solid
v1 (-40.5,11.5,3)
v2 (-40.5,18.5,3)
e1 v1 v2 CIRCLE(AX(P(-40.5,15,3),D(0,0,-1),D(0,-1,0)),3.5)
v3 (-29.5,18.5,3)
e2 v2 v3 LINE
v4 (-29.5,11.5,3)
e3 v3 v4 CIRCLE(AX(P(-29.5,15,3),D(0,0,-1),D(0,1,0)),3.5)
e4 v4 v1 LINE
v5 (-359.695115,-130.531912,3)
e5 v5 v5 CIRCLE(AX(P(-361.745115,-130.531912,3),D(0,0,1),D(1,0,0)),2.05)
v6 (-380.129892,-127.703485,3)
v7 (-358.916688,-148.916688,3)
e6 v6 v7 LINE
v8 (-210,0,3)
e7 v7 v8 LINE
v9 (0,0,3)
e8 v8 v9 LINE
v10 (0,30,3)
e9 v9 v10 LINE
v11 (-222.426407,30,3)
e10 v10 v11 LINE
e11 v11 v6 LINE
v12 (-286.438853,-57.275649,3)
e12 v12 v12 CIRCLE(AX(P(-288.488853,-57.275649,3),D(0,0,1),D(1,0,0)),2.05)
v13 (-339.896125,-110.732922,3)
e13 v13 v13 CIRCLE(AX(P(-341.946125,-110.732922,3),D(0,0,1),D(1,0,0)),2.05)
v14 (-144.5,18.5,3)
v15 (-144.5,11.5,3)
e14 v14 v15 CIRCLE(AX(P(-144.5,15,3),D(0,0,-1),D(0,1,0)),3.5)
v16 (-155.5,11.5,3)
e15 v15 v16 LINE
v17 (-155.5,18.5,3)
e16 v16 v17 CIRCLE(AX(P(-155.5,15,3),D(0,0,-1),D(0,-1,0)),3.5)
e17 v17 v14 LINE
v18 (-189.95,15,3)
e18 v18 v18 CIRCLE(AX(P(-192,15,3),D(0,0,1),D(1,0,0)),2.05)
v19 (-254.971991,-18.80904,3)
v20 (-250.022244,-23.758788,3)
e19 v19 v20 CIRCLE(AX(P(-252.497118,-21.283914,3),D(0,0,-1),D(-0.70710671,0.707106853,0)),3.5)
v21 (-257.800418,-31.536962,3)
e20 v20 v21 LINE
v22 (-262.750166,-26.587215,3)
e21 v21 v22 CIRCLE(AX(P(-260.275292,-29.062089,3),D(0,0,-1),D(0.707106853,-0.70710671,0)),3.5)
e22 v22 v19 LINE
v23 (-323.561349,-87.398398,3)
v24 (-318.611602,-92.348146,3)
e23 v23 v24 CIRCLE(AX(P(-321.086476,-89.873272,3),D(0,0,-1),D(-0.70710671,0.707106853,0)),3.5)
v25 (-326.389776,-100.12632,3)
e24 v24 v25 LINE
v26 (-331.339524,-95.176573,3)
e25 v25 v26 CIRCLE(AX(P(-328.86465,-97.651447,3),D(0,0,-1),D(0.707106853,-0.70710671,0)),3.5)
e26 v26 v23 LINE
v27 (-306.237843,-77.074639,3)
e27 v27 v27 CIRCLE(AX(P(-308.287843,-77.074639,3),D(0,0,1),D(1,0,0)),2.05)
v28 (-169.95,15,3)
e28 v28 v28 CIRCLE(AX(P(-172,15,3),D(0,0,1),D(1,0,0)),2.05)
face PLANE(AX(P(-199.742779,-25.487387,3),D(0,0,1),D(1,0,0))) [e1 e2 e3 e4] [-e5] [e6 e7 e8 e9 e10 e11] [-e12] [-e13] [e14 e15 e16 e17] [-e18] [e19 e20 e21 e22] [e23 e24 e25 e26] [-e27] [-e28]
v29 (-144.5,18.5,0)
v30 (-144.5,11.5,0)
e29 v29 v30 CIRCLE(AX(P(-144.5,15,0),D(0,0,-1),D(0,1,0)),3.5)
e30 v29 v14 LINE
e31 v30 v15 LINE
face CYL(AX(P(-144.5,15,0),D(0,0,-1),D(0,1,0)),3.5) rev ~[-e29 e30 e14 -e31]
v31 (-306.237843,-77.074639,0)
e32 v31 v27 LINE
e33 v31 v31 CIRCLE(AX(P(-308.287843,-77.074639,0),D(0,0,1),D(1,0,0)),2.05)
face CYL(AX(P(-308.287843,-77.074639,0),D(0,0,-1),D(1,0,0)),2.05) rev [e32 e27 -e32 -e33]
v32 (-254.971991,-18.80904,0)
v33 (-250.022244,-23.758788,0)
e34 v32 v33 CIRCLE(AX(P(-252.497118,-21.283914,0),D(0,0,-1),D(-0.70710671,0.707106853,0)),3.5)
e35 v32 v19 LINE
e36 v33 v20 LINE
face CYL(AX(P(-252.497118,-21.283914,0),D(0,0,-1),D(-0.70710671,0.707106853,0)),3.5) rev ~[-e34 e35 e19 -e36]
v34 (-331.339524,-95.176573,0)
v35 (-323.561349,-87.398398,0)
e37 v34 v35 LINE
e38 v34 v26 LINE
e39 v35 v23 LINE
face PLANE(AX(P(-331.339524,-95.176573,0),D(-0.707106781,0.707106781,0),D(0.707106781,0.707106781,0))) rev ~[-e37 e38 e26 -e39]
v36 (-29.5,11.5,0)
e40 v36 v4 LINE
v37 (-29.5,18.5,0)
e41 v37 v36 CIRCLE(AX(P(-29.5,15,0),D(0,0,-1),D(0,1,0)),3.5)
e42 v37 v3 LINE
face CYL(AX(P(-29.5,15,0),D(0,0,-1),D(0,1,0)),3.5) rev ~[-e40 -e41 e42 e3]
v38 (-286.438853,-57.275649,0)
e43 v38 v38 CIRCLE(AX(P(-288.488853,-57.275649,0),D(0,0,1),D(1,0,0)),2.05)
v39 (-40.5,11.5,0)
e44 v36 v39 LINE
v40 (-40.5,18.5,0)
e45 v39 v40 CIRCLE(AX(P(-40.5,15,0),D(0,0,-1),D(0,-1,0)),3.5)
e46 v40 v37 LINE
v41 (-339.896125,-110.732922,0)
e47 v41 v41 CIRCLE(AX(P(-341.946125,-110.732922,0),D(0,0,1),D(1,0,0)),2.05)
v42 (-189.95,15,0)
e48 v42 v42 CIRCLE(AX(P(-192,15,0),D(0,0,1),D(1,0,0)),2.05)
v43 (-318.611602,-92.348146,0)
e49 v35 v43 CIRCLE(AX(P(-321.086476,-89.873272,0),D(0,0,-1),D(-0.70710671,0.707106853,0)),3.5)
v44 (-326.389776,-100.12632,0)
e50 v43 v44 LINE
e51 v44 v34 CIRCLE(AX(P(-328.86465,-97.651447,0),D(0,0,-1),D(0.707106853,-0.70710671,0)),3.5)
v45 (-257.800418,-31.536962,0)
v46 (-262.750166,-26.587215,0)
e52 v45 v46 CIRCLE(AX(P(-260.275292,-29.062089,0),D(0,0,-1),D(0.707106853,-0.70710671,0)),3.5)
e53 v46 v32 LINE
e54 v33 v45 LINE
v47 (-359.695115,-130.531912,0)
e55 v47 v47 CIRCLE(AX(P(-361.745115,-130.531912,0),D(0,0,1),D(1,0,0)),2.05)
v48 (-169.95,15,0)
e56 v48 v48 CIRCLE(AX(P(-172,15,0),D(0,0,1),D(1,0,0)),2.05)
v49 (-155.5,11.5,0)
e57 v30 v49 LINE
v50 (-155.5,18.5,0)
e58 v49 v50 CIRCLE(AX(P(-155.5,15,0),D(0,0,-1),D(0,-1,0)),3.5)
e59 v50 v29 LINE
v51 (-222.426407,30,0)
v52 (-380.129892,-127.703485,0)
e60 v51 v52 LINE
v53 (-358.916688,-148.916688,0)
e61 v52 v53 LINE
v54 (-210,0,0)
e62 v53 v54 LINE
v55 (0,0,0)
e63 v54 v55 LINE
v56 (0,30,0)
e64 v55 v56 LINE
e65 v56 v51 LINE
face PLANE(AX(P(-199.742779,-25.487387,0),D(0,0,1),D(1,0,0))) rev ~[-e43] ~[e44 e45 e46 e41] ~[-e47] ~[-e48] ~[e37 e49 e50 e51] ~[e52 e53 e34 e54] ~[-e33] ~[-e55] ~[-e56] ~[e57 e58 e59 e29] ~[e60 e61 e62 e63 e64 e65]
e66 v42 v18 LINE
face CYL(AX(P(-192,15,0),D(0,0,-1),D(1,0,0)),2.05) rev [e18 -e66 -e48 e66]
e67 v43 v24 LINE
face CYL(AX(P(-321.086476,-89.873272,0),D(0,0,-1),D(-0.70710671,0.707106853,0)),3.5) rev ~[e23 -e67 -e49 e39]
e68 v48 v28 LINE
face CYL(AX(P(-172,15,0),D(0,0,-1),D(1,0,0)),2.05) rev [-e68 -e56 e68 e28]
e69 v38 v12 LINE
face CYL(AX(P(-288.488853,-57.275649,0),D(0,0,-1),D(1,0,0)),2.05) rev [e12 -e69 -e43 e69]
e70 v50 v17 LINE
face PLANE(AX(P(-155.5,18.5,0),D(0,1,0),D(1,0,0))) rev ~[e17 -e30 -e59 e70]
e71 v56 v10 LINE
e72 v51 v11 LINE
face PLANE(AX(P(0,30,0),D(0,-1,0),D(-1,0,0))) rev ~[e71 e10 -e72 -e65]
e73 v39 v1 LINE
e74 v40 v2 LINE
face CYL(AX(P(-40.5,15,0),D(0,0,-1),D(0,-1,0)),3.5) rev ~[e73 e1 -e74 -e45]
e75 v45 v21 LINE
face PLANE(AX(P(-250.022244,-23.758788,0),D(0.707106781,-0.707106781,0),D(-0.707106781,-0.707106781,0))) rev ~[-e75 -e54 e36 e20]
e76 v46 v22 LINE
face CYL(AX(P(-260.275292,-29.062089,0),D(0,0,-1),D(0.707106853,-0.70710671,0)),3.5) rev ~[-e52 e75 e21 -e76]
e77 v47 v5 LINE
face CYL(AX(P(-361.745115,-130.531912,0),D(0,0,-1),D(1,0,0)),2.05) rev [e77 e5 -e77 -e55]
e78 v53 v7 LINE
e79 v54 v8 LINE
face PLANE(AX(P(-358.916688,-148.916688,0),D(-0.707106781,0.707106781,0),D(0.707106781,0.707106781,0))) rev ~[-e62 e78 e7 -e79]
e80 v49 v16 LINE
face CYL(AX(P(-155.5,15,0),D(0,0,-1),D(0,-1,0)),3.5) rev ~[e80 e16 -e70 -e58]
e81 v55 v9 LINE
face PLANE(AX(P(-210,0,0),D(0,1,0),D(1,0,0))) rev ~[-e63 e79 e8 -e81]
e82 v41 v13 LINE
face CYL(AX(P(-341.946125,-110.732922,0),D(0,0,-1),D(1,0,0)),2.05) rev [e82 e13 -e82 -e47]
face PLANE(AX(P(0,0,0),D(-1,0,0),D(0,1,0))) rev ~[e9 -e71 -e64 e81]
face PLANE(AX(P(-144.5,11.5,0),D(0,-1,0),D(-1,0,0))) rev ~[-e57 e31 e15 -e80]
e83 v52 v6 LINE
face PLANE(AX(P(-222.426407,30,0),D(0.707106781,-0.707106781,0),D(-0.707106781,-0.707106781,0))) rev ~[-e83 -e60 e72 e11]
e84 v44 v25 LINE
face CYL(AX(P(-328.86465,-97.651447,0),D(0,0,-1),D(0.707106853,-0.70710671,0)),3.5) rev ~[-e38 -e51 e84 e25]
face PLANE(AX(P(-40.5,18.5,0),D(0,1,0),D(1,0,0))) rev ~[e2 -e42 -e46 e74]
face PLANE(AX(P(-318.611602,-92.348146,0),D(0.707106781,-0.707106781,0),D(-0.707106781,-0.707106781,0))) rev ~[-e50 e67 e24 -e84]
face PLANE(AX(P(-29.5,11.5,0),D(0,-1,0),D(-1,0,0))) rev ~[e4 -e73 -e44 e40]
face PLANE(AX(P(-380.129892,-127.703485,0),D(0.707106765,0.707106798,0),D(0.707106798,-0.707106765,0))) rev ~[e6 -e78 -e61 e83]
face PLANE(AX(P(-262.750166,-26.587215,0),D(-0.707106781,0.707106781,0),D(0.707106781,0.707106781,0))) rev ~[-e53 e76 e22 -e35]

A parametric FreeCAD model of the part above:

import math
import FreeCAD as App
import Part
import Sketcher
from FreeCAD import Vector
Q = App.Units.Quantity


def add_polygon(sketch, points):
    """Adds a closed chain of lines whose ends are joined by coincident constraints."""
    first, n = sketch.GeometryCount, len(points)
    for a, b in zip(points, points[1:] + points[:1]):
        sketch.addGeometry(Part.LineSegment(App.Vector(*a, 0), App.Vector(*b, 0)), False)
    for i in range(n):
        sketch.addConstraint(Sketcher.Constraint("Coincident", first + i, 2, first + (i + 1) % n, 1))

doc = App.newDocument("Part")
body = doc.addObject("PartDesign::Body", "Body")

sketch1 = body.newObject("Sketcher::SketchObject", "Sketch")
sketch1.AttachmentSupport = (doc.getObject("XY_Plane"), [""])
sketch1.MapMode = "FlatFace"
add_polygon(sketch1, [(-210, 0), (0, 0), (0, 30), (-222.426407, 30), (-380.129892, -127.703485), (-358.916688, -148.916688)])
sketch1.addGeometry(Part.Circle(Vector(-361.745115, -130.531912, 0), Vector(0, 0, 1), 2.05), False)
sketch1.addGeometry(Part.Circle(Vector(-341.946125, -110.732922, 0), Vector(0, 0, 1), 2.05), False)
sketch1.addGeometry(Part.LineSegment(Vector(-331.339524, -95.176573, 0), Vector(-323.561349, -87.398398, 0)), False)
sketch1.addGeometry(Part.ArcOfCircle(Part.Circle(Vector(-321.086476, -89.873272, 0), Vector(0, 0, 1), 3.5), math.radians(-45.000006), math.radians(134.999994)), False)
sketch1.addGeometry(Part.LineSegment(Vector(-318.611602, -92.348146, 0), Vector(-326.389776, -100.12632, 0)), False)
sketch1.addGeometry(Part.ArcOfCircle(Part.Circle(Vector(-328.86465, -97.651447, 0), Vector(0, 0, 1), 3.5), math.radians(135.000006), math.radians(315.000006)), False)
sketch1.addGeometry(Part.Circle(Vector(-308.287843, -77.074639, 0), Vector(0, 0, 1), 2.05), False)
sketch1.addGeometry(Part.Circle(Vector(-288.488853, -57.275649, 0), Vector(0, 0, 1), 2.05), False)
sketch1.addGeometry(Part.LineSegment(Vector(-262.750166, -26.587215, 0), Vector(-254.971991, -18.80904, 0)), False)
sketch1.addGeometry(Part.ArcOfCircle(Part.Circle(Vector(-252.497118, -21.283914, 0), Vector(0, 0, 1), 3.5), math.radians(-45.000006), math.radians(134.999994)), False)
sketch1.addGeometry(Part.LineSegment(Vector(-250.022244, -23.758788, 0), Vector(-257.800418, -31.536962, 0)), False)
sketch1.addGeometry(Part.ArcOfCircle(Part.Circle(Vector(-260.275292, -29.062089, 0), Vector(0, 0, 1), 3.5), math.radians(135.000006), math.radians(315.000006)), False)
sketch1.addGeometry(Part.Circle(Vector(-192, 15, 0), Vector(0, 0, 1), 2.05), False)
sketch1.addGeometry(Part.Circle(Vector(-172, 15, 0), Vector(0, 0, 1), 2.05), False)
sketch1.addGeometry(Part.LineSegment(Vector(-155.5, 18.5, 0), Vector(-144.5, 18.5, 0)), False)
sketch1.addGeometry(Part.ArcOfCircle(Part.Circle(Vector(-144.5, 15, 0), Vector(0, 0, 1), 3.5), math.radians(-90), math.radians(90)), False)
sketch1.addGeometry(Part.LineSegment(Vector(-144.5, 11.5, 0), Vector(-155.5, 11.5, 0)), False)
sketch1.addGeometry(Part.ArcOfCircle(Part.Circle(Vector(-155.5, 15, 0), Vector(0, 0, 1), 3.5), math.radians(90), math.radians(270)), False)
sketch1.addGeometry(Part.LineSegment(Vector(-40.5, 18.5, 0), Vector(-29.5, 18.5, 0)), False)
sketch1.addGeometry(Part.ArcOfCircle(Part.Circle(Vector(-29.5, 15, 0), Vector(0, 0, 1), 3.5), math.radians(-90), math.radians(90)), False)
sketch1.addGeometry(Part.LineSegment(Vector(-29.5, 11.5, 0), Vector(-40.5, 11.5, 0)), False)
sketch1.addGeometry(Part.ArcOfCircle(Part.Circle(Vector(-40.5, 15, 0), Vector(0, 0, 1), 3.5), math.radians(90), math.radians(270)), False)
sketch1.addConstraint([
    Sketcher.Constraint("Tangent", 8, 2, 9, 2),
    Sketcher.Constraint("Tangent", 9, 1, 10, 1),
    Sketcher.Constraint("Tangent", 10, 2, 11, 2),
    Sketcher.Constraint("Tangent", 11, 1, 8, 1),
    Sketcher.Constraint("Tangent", 14, 2, 15, 2),
    Sketcher.Constraint("Tangent", 15, 1, 16, 1),
    Sketcher.Constraint("Tangent", 16, 2, 17, 2),
    Sketcher.Constraint("Tangent", 17, 1, 14, 1),
    Sketcher.Constraint("Tangent", 20, 2, 21, 2),
    Sketcher.Constraint("Tangent", 21, 1, 22, 1),
    Sketcher.Constraint("Tangent", 22, 2, 23, 2),
    Sketcher.Constraint("Tangent", 23, 1, 20, 1),
    Sketcher.Constraint("Tangent", 24, 2, 25, 2),
    Sketcher.Constraint("Tangent", 25, 1, 26, 1),
    Sketcher.Constraint("Tangent", 26, 2, 27, 2),
    Sketcher.Constraint("Tangent", 27, 1, 24, 1),
    Sketcher.Constraint("Horizontal", 0),
    Sketcher.Constraint("Vertical", 1),
    Sketcher.Constraint("Horizontal", 2),
    Sketcher.Constraint("Horizontal", 20),
    Sketcher.Constraint("Horizontal", 22),
    Sketcher.Constraint("Horizontal", 24),
    Sketcher.Constraint("Horizontal", 26),
    Sketcher.Constraint("Coincident", 0, 2, -1, 1),
    Sketcher.Constraint("Equal", 6, 7),
    Sketcher.Constraint("Equal", 9, 11),
    Sketcher.Constraint("Equal", 7, 12),
    Sketcher.Constraint("Equal", 12, 13),
    Sketcher.Constraint("Equal", 11, 15),
    Sketcher.Constraint("Equal", 15, 17),
    Sketcher.Constraint("Equal", 13, 18),
    Sketcher.Constraint("Equal", 18, 19),
    Sketcher.Constraint("Equal", 17, 21),
    Sketcher.Constraint("Equal", 23, 25),
    Sketcher.Constraint("Perpendicular", 3, 4),
    Sketcher.Constraint("Perpendicular", 4, 5),
    Sketcher.Constraint("Parallel", 5, 8),
    Sketcher.Constraint("Parallel", 10, 14),
    Sketcher.Constraint("Horizontal", 18, 3, 19, 3),
    Sketcher.Constraint("Horizontal", 19, 3, 21, 3),
    Sketcher.Constraint("Horizontal", 23, 3, 25, 3),
    Sketcher.Constraint("Equal", 22, 24),
    Sketcher.Constraint("Equal", 10, 14),
    Sketcher.Constraint("Diameter", 6, Q("4.1 mm")),
    Sketcher.Constraint("Radius", 9, Q("3.5 mm")),
    Sketcher.Constraint("DistanceX", 0, 1, 0, 2, Q("210 mm")),
    Sketcher.Constraint("DistanceX", 20, 1, 20, 2, Q("11 mm")),
    Sketcher.Constraint("DistanceY", 1, 1, 1, 2, Q("30 mm")),
    Sketcher.Constraint("Angle", 3, Q("-135 deg")),
    Sketcher.Constraint("Distance", 4, Q("30 mm")),
    Sketcher.Constraint("Distance", 8, Q("11.000001 mm")),
    Sketcher.Constraint("DistanceX", 18, 3, -1, 1, Q("192 mm")),
    Sketcher.Constraint("DistanceY", -1, 1, 18, 3, Q("15 mm")),
    Sketcher.Constraint("DistanceX", 19, 3, -1, 1, Q("172 mm")),
    Sketcher.Constraint("DistanceX", 21, 3, 25, 3, Q("115 mm")),
    Sketcher.Constraint("Distance", 5, Q("210.6 mm")),
    Sketcher.Constraint("DistanceX", 21, 3, -1, 1, Q("144.5 mm")),
    Sketcher.Constraint("DistanceY", 8, 2, -1, 1, Q("87.398398 mm")),
    Sketcher.Constraint("DistanceY", 7, 3, 10, 2, Q("10.606602 mm")),
    Sketcher.Constraint("DistanceY", 6, 3, -1, 1, Q("130.531912 mm")),
    Sketcher.Constraint("DistanceX", 11, 3, -1, 1, Q("328.86465 mm")),
    Sketcher.Constraint("DistanceY", 12, 3, -1, 1, Q("77.074639 mm")),
    Sketcher.Constraint("DistanceY", 13, 3, -1, 1, Q("57.275649 mm")),
    Sketcher.Constraint("DistanceX", 17, 3, -1, 1, Q("260.275292 mm")),
    Sketcher.Constraint("DistanceY", 17, 3, -1, 1, Q("29.062089 mm")),
    Sketcher.Constraint("DistanceX", 6, 3, 7, 3, Q("19.79899 mm")),
    Sketcher.Constraint("DistanceX", 7, 3, 9, 3, Q("20.859649 mm")),
    Sketcher.Constraint("DistanceX", 7, 3, 12, 3, Q("33.658282 mm")),
    Sketcher.Constraint("DistanceX", 12, 3, 13, 3, Q("19.79899 mm")),
])
pad1 = body.newObject("PartDesign::Pad", "Pad")
pad1.Profile = sketch1
pad1.Length = 3

doc.recompute()
